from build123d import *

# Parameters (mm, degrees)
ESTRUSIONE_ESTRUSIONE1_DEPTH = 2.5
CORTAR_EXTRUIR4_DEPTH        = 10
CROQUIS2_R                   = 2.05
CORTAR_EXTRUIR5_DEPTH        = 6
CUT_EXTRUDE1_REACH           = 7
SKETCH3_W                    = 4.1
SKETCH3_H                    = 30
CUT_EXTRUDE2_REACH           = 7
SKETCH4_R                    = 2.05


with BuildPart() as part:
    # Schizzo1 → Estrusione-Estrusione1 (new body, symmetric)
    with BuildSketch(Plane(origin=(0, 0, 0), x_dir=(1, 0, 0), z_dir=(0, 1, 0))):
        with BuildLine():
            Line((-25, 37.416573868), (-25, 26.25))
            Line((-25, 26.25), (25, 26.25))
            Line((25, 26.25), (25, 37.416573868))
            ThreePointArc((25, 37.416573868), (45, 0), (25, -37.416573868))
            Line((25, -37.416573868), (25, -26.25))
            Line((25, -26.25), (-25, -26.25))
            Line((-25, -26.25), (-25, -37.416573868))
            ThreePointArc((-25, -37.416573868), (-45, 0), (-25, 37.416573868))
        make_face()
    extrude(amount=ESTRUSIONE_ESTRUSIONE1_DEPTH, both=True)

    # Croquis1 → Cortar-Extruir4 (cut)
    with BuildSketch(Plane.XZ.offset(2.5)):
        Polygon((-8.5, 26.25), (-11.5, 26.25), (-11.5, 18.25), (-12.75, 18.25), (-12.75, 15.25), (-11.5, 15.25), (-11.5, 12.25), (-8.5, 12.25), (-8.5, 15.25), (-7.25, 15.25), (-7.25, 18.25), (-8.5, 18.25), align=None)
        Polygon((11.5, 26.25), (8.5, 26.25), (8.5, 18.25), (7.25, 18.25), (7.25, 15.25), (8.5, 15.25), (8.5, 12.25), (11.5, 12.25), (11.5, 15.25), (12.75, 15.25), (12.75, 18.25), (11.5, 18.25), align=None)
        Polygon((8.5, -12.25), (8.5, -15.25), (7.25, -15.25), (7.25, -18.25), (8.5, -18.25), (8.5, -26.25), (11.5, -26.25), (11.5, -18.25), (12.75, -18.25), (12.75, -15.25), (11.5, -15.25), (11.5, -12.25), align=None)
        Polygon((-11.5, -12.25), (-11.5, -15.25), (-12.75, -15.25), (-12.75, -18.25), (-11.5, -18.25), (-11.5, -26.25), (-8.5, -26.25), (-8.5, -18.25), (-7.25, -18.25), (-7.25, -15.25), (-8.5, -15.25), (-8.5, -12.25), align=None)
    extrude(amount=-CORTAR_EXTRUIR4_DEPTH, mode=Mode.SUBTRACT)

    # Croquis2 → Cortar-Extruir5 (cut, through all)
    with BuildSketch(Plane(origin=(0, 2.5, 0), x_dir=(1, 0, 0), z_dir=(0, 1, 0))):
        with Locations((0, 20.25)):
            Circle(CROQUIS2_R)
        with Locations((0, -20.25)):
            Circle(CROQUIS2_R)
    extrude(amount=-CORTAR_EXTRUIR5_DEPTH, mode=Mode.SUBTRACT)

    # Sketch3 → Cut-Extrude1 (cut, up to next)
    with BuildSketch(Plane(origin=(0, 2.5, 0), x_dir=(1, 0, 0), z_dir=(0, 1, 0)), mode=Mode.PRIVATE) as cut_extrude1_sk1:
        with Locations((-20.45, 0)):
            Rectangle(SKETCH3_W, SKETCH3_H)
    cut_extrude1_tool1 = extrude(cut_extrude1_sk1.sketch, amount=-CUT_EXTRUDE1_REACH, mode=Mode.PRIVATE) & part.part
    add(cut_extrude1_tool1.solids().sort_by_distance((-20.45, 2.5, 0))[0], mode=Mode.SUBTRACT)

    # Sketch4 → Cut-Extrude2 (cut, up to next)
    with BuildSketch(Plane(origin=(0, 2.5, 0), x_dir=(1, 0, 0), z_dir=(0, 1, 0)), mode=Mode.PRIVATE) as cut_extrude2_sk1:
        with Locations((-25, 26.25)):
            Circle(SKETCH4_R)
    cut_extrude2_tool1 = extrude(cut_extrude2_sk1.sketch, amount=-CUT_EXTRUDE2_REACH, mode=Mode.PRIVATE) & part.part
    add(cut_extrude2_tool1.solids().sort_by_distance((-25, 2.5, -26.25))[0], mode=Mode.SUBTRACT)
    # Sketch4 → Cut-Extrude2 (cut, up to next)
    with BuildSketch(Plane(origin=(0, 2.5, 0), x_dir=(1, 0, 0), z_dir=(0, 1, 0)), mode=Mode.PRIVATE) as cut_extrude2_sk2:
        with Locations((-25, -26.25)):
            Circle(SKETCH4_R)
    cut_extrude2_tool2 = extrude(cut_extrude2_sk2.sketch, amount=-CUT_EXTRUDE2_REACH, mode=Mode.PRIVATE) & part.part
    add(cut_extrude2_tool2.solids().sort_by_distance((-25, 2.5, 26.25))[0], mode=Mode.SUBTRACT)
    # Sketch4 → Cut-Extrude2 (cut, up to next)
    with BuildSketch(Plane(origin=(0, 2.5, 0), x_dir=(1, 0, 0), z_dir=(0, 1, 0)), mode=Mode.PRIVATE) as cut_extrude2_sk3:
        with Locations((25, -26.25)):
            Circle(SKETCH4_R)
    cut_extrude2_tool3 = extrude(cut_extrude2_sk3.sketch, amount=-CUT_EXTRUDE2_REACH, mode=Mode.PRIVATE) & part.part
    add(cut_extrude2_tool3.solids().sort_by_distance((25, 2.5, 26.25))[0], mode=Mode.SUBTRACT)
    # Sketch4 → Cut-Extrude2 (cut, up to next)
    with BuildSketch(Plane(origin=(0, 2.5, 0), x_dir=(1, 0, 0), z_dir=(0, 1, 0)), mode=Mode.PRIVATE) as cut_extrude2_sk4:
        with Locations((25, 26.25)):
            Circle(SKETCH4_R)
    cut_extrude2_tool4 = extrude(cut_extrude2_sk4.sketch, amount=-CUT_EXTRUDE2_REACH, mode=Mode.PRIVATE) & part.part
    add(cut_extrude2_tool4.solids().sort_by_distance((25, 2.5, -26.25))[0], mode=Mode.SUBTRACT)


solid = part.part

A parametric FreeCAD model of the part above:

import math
import FreeCAD as App
import Part
import Sketcher

V = App.Vector
Q = App.Units.Quantity

doc = App.newDocument("Part")
body = doc.addObject("PartDesign::Body", "Body")

sketch1 = body.newObject("Sketcher::SketchObject", "Sketch")
sketch1.AttachmentSupport = (doc.getObject("XZ_Plane"), [""])
sketch1.MapMode = "FlatFace"
sketch1.addGeometry(Part.LineSegment(V(-25, -26, 0), V(-25, -37, 0)), False)
sketch1.addGeometry(Part.ArcOfCircle(Part.Circle(V(0, 0, 0), V(0, 0, 1), 45), math.radians(124), math.radians(236)), False)
sketch1.addGeometry(Part.LineSegment(V(-25, 37, 0), V(-25, 26, 0)), False)
sketch1.addGeometry(Part.LineSegment(V(-25, 26, 0), V(25, 26, 0)), False)
sketch1.addGeometry(Part.LineSegment(V(25, 26, 0), V(25, 37, 0)), False)
sketch1.addGeometry(Part.ArcOfCircle(Part.Circle(V(0, 0, 0), V(0, 0, 1), 45), math.radians(-56), math.radians(56)), False)
sketch1.addGeometry(Part.LineSegment(V(25, -37, 0), V(25, -26, 0)), False)
sketch1.addGeometry(Part.LineSegment(V(25, -26, 0), V(-25, -26, 0)), False)
sketch1.addConstraint(Sketcher.Constraint("Coincident", 0, 2, 1, 2))
sketch1.addConstraint(Sketcher.Constraint("Coincident", 1, 1, 2, 1))
sketch1.addConstraint(Sketcher.Constraint("Coincident", 2, 2, 3, 1))
sketch1.addConstraint(Sketcher.Constraint("Coincident", 3, 2, 4, 1))
sketch1.addConstraint(Sketcher.Constraint("Coincident", 4, 2, 5, 2))
sketch1.addConstraint(Sketcher.Constraint("Coincident", 5, 1, 6, 1))
sketch1.addConstraint(Sketcher.Constraint("Coincident", 6, 2, 7, 1))
sketch1.addConstraint(Sketcher.Constraint("Coincident", 7, 2, 0, 1))
sketch1.addConstraint(Sketcher.Constraint("Vertical", 0))
sketch1.addConstraint(Sketcher.Constraint("Vertical", 2))
sketch1.addConstraint(Sketcher.Constraint("Horizontal", 3))
sketch1.addConstraint(Sketcher.Constraint("Vertical", 4))
sketch1.addConstraint(Sketcher.Constraint("Vertical", 6))
sketch1.addConstraint(Sketcher.Constraint("Horizontal", 7))
sketch1.addConstraint(Sketcher.Constraint("Coincident", 1, 3, -1, 1))
sketch1.addConstraint(Sketcher.Constraint("Coincident", 5, 3, -1, 1))
sketch1.addConstraint(Sketcher.Constraint("Equal", 1, 5))
sketch1.addConstraint(Sketcher.Constraint("Symmetric", 2, 2, 6, 2, -1, 1))
sketch1.addConstraint(Sketcher.Constraint("Horizontal", 1, 1, 4, 2))
sketch1.addConstraint(Sketcher.Constraint("Horizontal", 0, 2, 5, 1))
sketch1.addConstraint(Sketcher.Constraint("Radius", 1, Q("45 mm")))
sketch1.addConstraint(Sketcher.Constraint("DistanceX", 3, 1, 3, 2, Q("50 mm")))
sketch1.addConstraint(Sketcher.Constraint("DistanceY", 6, 2, 3, 2, Q("52.5 mm")))
pad1 = body.newObject("PartDesign::Pad", "Pad")
pad1.Profile = sketch1
pad1.Length = 5
pad1.Midplane = True

sketch2 = body.newObject("Sketcher::SketchObject", "Sketch001")
sketch2.AttachmentSupport = (doc.getObject("XZ_Plane"), [""])
sketch2.MapMode = "FlatFace"
sketch2.AttachmentOffset = App.Placement(V(0, 0, 2.5), App.Rotation())
sketch2.addGeometry(Part.LineSegment(V(-8.5, 26.2, 0), V(-11.5, 26.2, 0)), False)
sketch2.addGeometry(Part.LineSegment(V(-11.5, 26.2, 0), V(-11.5, 18.2, 0)), False)
sketch2.addGeometry(Part.LineSegment(V(-11.5, 18.2, 0), V(-12.8, 18.2, 0)), False)
sketch2.addGeometry(Part.LineSegment(V(-12.8, 18.2, 0), V(-12.8, 15.2, 0)), False)
sketch2.addGeometry(Part.LineSegment(V(-12.8, 15.2, 0), V(-11.5, 15.2, 0)), False)
sketch2.addGeometry(Part.LineSegment(V(-11.5, 15.2, 0), V(-11.5, 12.2, 0)), False)
sketch2.addGeometry(Part.LineSegment(V(-11.5, 12.2, 0), V(-8.5, 12.2, 0)), False)
sketch2.addGeometry(Part.LineSegment(V(-8.5, 12.2, 0), V(-8.5, 15.2, 0)), False)
sketch2.addGeometry(Part.LineSegment(V(-8.5, 15.2, 0), V(-7.2, 15.2, 0)), False)
sketch2.addGeometry(Part.LineSegment(V(-7.2, 15.2, 0), V(-7.2, 18.2, 0)), False)
sketch2.addGeometry(Part.LineSegment(V(-7.2, 18.2, 0), V(-8.5, 18.2, 0)), False)
sketch2.addGeometry(Part.LineSegment(V(-8.5, 18.2, 0), V(-8.5, 26.2, 0)), False)
sketch2.addGeometry(Part.LineSegment(V(11.5, 26.2, 0), V(8.5, 26.2, 0)), False)
sketch2.addGeometry(Part.LineSegment(V(8.5, 26.2, 0), V(8.5, 18.2, 0)), False)
sketch2.addGeometry(Part.LineSegment(V(8.5, 18.2, 0), V(7.2, 18.2, 0)), False)
sketch2.addGeometry(Part.LineSegment(V(7.2, 18.2, 0), V(7.2, 15.2, 0)), False)
sketch2.addGeometry(Part.LineSegment(V(7.2, 15.2, 0), V(8.5, 15.2, 0)), False)
sketch2.addGeometry(Part.LineSegment(V(8.5, 15.2, 0), V(8.5, 12.2, 0)), False)
sketch2.addGeometry(Part.LineSegment(V(8.5, 12.2, 0), V(11.5, 12.2, 0)), False)
sketch2.addGeometry(Part.LineSegment(V(11.5, 12.2, 0), V(11.5, 15.2, 0)), False)
sketch2.addGeometry(Part.LineSegment(V(11.5, 15.2, 0), V(12.8, 15.2, 0)), False)
sketch2.addGeometry(Part.LineSegment(V(12.8, 15.2, 0), V(12.8, 18.2, 0)), False)
sketch2.addGeometry(Part.LineSegment(V(12.8, 18.2, 0), V(11.5, 18.2, 0)), False)
sketch2.addGeometry(Part.LineSegment(V(11.5, 18.2, 0), V(11.5, 26.2, 0)), False)
sketch2.addGeometry(Part.LineSegment(V(8.5, -12.2, 0), V(8.5, -15.2, 0)), False)
sketch2.addGeometry(Part.LineSegment(V(8.5, -15.2, 0), V(7.2, -15.2, 0)), False)
sketch2.addGeometry(Part.LineSegment(V(7.2, -15.2, 0), V(7.2, -18.2, 0)), False)
sketch2.addGeometry(Part.LineSegment(V(7.2, -18.2, 0), V(8.5, -18.2, 0)), False)
sketch2.addGeometry(Part.LineSegment(V(8.5, -18.2, 0), V(8.5, -26.2, 0)), False)
sketch2.addGeometry(Part.LineSegment(V(8.5, -26.2, 0), V(11.5, -26.2, 0)), False)
sketch2.addGeometry(Part.LineSegment(V(11.5, -26.2, 0), V(11.5, -18.2, 0)), False)
sketch2.addGeometry(Part.LineSegment(V(11.5, -18.2, 0), V(12.8, -18.2, 0)), False)
sketch2.addGeometry(Part.LineSegment(V(12.8, -18.2, 0), V(12.8, -15.2, 0)), False)
sketch2.addGeometry(Part.LineSegment(V(12.8, -15.2, 0), V(11.5, -15.2, 0)), False)
sketch2.addGeometry(Part.LineSegment(V(11.5, -15.2, 0), V(11.5, -12.2, 0)), False)
sketch2.addGeometry(Part.LineSegment(V(11.5, -12.2, 0), V(8.5, -12.2, 0)), False)
sketch2.addGeometry(Part.LineSegment(V(-11.5, -12.2, 0), V(-11.5, -15.2, 0)), False)
sketch2.addGeometry(Part.LineSegment(V(-11.5, -15.2, 0), V(-12.8, -15.2, 0)), False)
sketch2.addGeometry(Part.LineSegment(V(-12.8, -15.2, 0), V(-12.8, -18.2, 0)), False)
sketch2.addGeometry(Part.LineSegment(V(-12.8, -18.2, 0), V(-11.5, -18.2, 0)), False)
sketch2.addGeometry(Part.LineSegment(V(-11.5, -18.2, 0), V(-11.5, -26.2, 0)), False)
sketch2.addGeometry(Part.LineSegment(V(-11.5, -26.2, 0), V(-8.5, -26.2, 0)), False)
sketch2.addGeometry(Part.LineSegment(V(-8.5, -26.2, 0), V(-8.5, -18.2, 0)), False)
sketch2.addGeometry(Part.LineSegment(V(-8.5, -18.2, 0), V(-7.2, -18.2, 0)), False)
sketch2.addGeometry(Part.LineSegment(V(-7.2, -18.2, 0), V(-7.2, -15.2, 0)), False)
sketch2.addGeometry(Part.LineSegment(V(-7.2, -15.2, 0), V(-8.5, -15.2, 0)), False)
sketch2.addGeometry(Part.LineSegment(V(-8.5, -15.2, 0), V(-8.5, -12.2, 0)), False)
sketch2.addGeometry(Part.LineSegment(V(-8.5, -12.2, 0), V(-11.5, -12.2, 0)), False)
sketch2.addConstraint(Sketcher.Constraint("Coincident", 0, 2, 1, 1))
sketch2.addConstraint(Sketcher.Constraint("Coincident", 1, 2, 2, 1))
sketch2.addConstraint(Sketcher.Constraint("Coincident", 2, 2, 3, 1))
sketch2.addConstraint(Sketcher.Constraint("Coincident", 3, 2, 4, 1))
sketch2.addConstraint(Sketcher.Constraint("Coincident", 4, 2, 5, 1))
sketch2.addConstraint(Sketcher.Constraint("Coincident", 5, 2, 6, 1))
sketch2.addConstraint(Sketcher.Constraint("Coincident", 6, 2, 7, 1))
sketch2.addConstraint(Sketcher.Constraint("Coincident", 7, 2, 8, 1))
sketch2.addConstraint(Sketcher.Constraint("Coincident", 8, 2, 9, 1))
sketch2.addConstraint(Sketcher.Constraint("Coincident", 9, 2, 10, 1))
sketch2.addConstraint(Sketcher.Constraint("Coincident", 10, 2, 11, 1))
sketch2.addConstraint(Sketcher.Constraint("Coincident", 11, 2, 0, 1))
sketch2.addConstraint(Sketcher.Constraint("Coincident", 12, 2, 13, 1))
sketch2.addConstraint(Sketcher.Constraint("Coincident", 13, 2, 14, 1))
sketch2.addConstraint(Sketcher.Constraint("Coincident", 14, 2, 15, 1))
sketch2.addConstraint(Sketcher.Constraint("Coincident", 15, 2, 16, 1))
sketch2.addConstraint(Sketcher.Constraint("Coincident", 16, 2, 17, 1))
sketch2.addConstraint(Sketcher.Constraint("Coincident", 17, 2, 18, 1))
sketch2.addConstraint(Sketcher.Constraint("Coincident", 18, 2, 19, 1))
sketch2.addConstraint(Sketcher.Constraint("Coincident", 19, 2, 20, 1))
sketch2.addConstraint(Sketcher.Constraint("Coincident", 20, 2, 21, 1))
sketch2.addConstraint(Sketcher.Constraint("Coincident", 21, 2, 22, 1))
sketch2.addConstraint(Sketcher.Constraint("Coincident", 22, 2, 23, 1))
sketch2.addConstraint(Sketcher.Constraint("Coincident", 23, 2, 12, 1))
sketch2.addConstraint(Sketcher.Constraint("Coincident", 24, 2, 25, 1))
sketch2.addConstraint(Sketcher.Constraint("Coincident", 25, 2, 26, 1))
sketch2.addConstraint(Sketcher.Constraint("Coincident", 26, 2, 27, 1))
sketch2.addConstraint(Sketcher.Constraint("Coincident", 27, 2, 28, 1))
sketch2.addConstraint(Sketcher.Constraint("Coincident", 28, 2, 29, 1))
sketch2.addConstraint(Sketcher.Constraint("Coincident", 29, 2, 30, 1))
sketch2.addConstraint(Sketcher.Constraint("Coincident", 30, 2, 31, 1))
sketch2.addConstraint(Sketcher.Constraint("Coincident", 31, 2, 32, 1))
sketch2.addConstraint(Sketcher.Constraint("Coincident", 32, 2, 33, 1))
sketch2.addConstraint(Sketcher.Constraint("Coincident", 33, 2, 34, 1))
sketch2.addConstraint(Sketcher.Constraint("Coincident", 34, 2, 35, 1))
sketch2.addConstraint(Sketcher.Constraint("Coincident", 35, 2, 24, 1))
sketch2.addConstraint(Sketcher.Constraint("Coincident", 36, 2, 37, 1))
sketch2.addConstraint(Sketcher.Constraint("Coincident", 37, 2, 38, 1))
sketch2.addConstraint(Sketcher.Constraint("Coincident", 38, 2, 39, 1))
sketch2.addConstraint(Sketcher.Constraint("Coincident", 39, 2, 40, 1))
sketch2.addConstraint(Sketcher.Constraint("Coincident", 40, 2, 41, 1))
sketch2.addConstraint(Sketcher.Constraint("Coincident", 41, 2, 42, 1))
sketch2.addConstraint(Sketcher.Constraint("Coincident", 42, 2, 43, 1))
sketch2.addConstraint(Sketcher.Constraint("Coincident", 43, 2, 44, 1))
sketch2.addConstraint(Sketcher.Constraint("Coincident", 44, 2, 45, 1))
sketch2.addConstraint(Sketcher.Constraint("Coincident", 45, 2, 46, 1))
sketch2.addConstraint(Sketcher.Constraint("Coincident", 46, 2, 47, 1))
sketch2.addConstraint(Sketcher.Constraint("Coincident", 47, 2, 36, 1))
sketch2.addConstraint(Sketcher.Constraint("Horizontal", 0))
sketch2.addConstraint(Sketcher.Constraint("Vertical", 1))
sketch2.addConstraint(Sketcher.Constraint("Horizontal", 2))
sketch2.addConstraint(Sketcher.Constraint("Vertical", 3))
sketch2.addConstraint(Sketcher.Constraint("Horizontal", 4))
sketch2.addConstraint(Sketcher.Constraint("Vertical", 5))
sketch2.addConstraint(Sketcher.Constraint("Horizontal", 6))
sketch2.addConstraint(Sketcher.Constraint("Vertical", 7))
sketch2.addConstraint(Sketcher.Constraint("Horizontal", 8))
sketch2.addConstraint(Sketcher.Constraint("Vertical", 9))
sketch2.addConstraint(Sketcher.Constraint("Horizontal", 10))
sketch2.addConstraint(Sketcher.Constraint("Vertical", 11))
sketch2.addConstraint(Sketcher.Constraint("Horizontal", 12))
sketch2.addConstraint(Sketcher.Constraint("Vertical", 13))
sketch2.addConstraint(Sketcher.Constraint("Horizontal", 14))
sketch2.addConstraint(Sketcher.Constraint("Vertical", 15))
sketch2.addConstraint(Sketcher.Constraint("Horizontal", 16))
sketch2.addConstraint(Sketcher.Constraint("Vertical", 17))
sketch2.addConstraint(Sketcher.Constraint("Horizontal", 18))
sketch2.addConstraint(Sketcher.Constraint("Vertical", 19))
sketch2.addConstraint(Sketcher.Constraint("Horizontal", 20))
sketch2.addConstraint(Sketcher.Constraint("Vertical", 21))
sketch2.addConstraint(Sketcher.Constraint("Horizontal", 22))
sketch2.addConstraint(Sketcher.Constraint("Vertical", 23))
sketch2.addConstraint(Sketcher.Constraint("Vertical", 24))
sketch2.addConstraint(Sketcher.Constraint("Horizontal", 25))
sketch2.addConstraint(Sketcher.Constraint("Vertical", 26))
sketch2.addConstraint(Sketcher.Constraint("Horizontal", 27))
sketch2.addConstraint(Sketcher.Constraint("Vertical", 28))
sketch2.addConstraint(Sketcher.Constraint("Horizontal", 29))
sketch2.addConstraint(Sketcher.Constraint("Vertical", 30))
sketch2.addConstraint(Sketcher.Constraint("Horizontal", 31))
sketch2.addConstraint(Sketcher.Constraint("Vertical", 32))
sketch2.addConstraint(Sketcher.Constraint("Horizontal", 33))
sketch2.addConstraint(Sketcher.Constraint("Vertical", 34))
sketch2.addConstraint(Sketcher.Constraint("Horizontal", 35))
sketch2.addConstraint(Sketcher.Constraint("Vertical", 36))
sketch2.addConstraint(Sketcher.Constraint("Horizontal", 37))
sketch2.addConstraint(Sketcher.Constraint("Vertical", 38))
sketch2.addConstraint(Sketcher.Constraint("Horizontal", 39))
sketch2.addConstraint(Sketcher.Constraint("Vertical", 40))
sketch2.addConstraint(Sketcher.Constraint("Horizontal", 41))
sketch2.addConstraint(Sketcher.Constraint("Vertical", 42))
sketch2.addConstraint(Sketcher.Constraint("Horizontal", 43))
sketch2.addConstraint(Sketcher.Constraint("Vertical", 44))
sketch2.addConstraint(Sketcher.Constraint("Horizontal", 45))
sketch2.addConstraint(Sketcher.Constraint("Vertical", 46))
sketch2.addConstraint(Sketcher.Constraint("Horizontal", 47))
sketch2.addConstraint(Sketcher.Constraint("Symmetric", 7, 2, 24, 2, -1, 1))
sketch2.addConstraint(Sketcher.Constraint("Symmetric", 9, 2, 26, 2, -1, 1))
sketch2.addConstraint(Sketcher.Constraint("Symmetric", 11, 2, 28, 2, -1, 1))
sketch2.addConstraint(Sketcher.Constraint("Symmetric", 1, 2, 30, 2, -1, 1))
sketch2.addConstraint(Sketcher.Constraint("Symmetric", 3, 2, 32, 2, -1, 1))
sketch2.addConstraint(Sketcher.Constraint("Symmetric", 5, 2, 34, 2, -1, 1))
sketch2.addConstraint(Sketcher.Constraint("Symmetric", 19, 2, 36, 2, -1, 1))
sketch2.addConstraint(Sketcher.Constraint("Symmetric", 21, 2, 38, 2, -1, 1))
sketch2.addConstraint(Sketcher.Constraint("Symmetric", 23, 2, 40, 2, -1, 1))
sketch2.addConstraint(Sketcher.Constraint("Symmetric", 13, 2, 42, 2, -1, 1))
sketch2.addConstraint(Sketcher.Constraint("Symmetric", 15, 2, 44, 2, -1, 1))
sketch2.addConstraint(Sketcher.Constraint("Symmetric", 17, 2, 46, 2, -1, 1))
sketch2.addConstraint(Sketcher.Constraint("Symmetric", 11, 2, 12, 2, -2))
sketch2.addConstraint(Sketcher.Constraint("Symmetric", 9, 2, 14, 2, -2))
sketch2.addConstraint(Sketcher.Constraint("Symmetric", 7, 2, 16, 2, -2))
sketch2.addConstraint(Sketcher.Constraint("Symmetric", 5, 2, 18, 2, -2))
sketch2.addConstraint(Sketcher.Constraint("Symmetric", 3, 2, 20, 2, -2))
sketch2.addConstraint(Sketcher.Constraint("Symmetric", 1, 2, 22, 2, -2))
sketch2.addConstraint(Sketcher.Constraint("Horizontal", 4, 2, 7, 2))
sketch2.addConstraint(Sketcher.Constraint("Horizontal", 2, 2, 9, 2))
sketch2.addConstraint(Sketcher.Constraint("Vertical", 1, 2, 4, 2))
sketch2.addConstraint(Sketcher.Constraint("Vertical", 7, 2, 10, 2))
sketch2.addConstraint(Sketcher.Constraint("Equal", 4, 8))
sketch2.addConstraint(Sketcher.Constraint("Equal", 47, 3))
sketch2.addConstraint(Sketcher.Constraint("Equal", 3, 5))
sketch2.addConstraint(Sketcher.Constraint("DistanceX", 0, 2, 0, 1, Q("3 mm")))
sketch2.addConstraint(Sketcher.Constraint("DistanceY", 1, 2, 1, 1, Q("8 mm")))
sketch2.addConstraint(Sketcher.Constraint("DistanceX", 11, 2, 12, 2, Q("17 mm")))
sketch2.addConstraint(Sketcher.Constraint("DistanceX", 2, 2, 2, 1, Q("1.25 mm")))
sketch2.addConstraint(Sketcher.Constraint("DistanceY", 24, 2, 17, 2, Q("27.5 mm")))
pocket1 = body.newObject("PartDesign::Pocket", "Pocket")
pocket1.Profile = sketch2
pocket1.Length = 10

sketch3 = body.newObject("Sketcher::SketchObject", "Sketch002")
sketch3.AttachmentSupport = (doc.getObject("XZ_Plane"), [""])
sketch3.MapMode = "FlatFace"
sketch3.AttachmentOffset = App.Placement(V(0, 0, -2.5), App.Rotation())
sketch3.addGeometry(Part.Circle(V(0, -20.2, 0), V(0, 0, 1), 2), False)
sketch3.addGeometry(Part.Circle(V(0, 20.2, 0), V(0, 0, 1), 2), False)
sketch3.addConstraint(Sketcher.Constraint("Equal", 0, 1))
sketch3.addConstraint(Sketcher.Constraint("Symmetric", 0, 3, 1, 3, -1, 1))
sketch3.addConstraint(Sketcher.Constraint("PointOnObject", 0, 3, -2))
sketch3.addConstraint(Sketcher.Constraint("Diameter", 0, Q("4.1 mm")))
sketch3.addConstraint(Sketcher.Constraint("DistanceY", 0, 3, 1, 3, Q("40.5 mm")))
pocket2 = body.newObject("PartDesign::Pocket", "Pocket001")
pocket2.Profile = sketch3
pocket2.Type = "ThroughAll"
pocket2.Reversed = True

sketch4 = body.newObject("Sketcher::SketchObject", "Sketch003")
sketch4.AttachmentSupport = (doc.getObject("XZ_Plane"), [""])
sketch4.MapMode = "FlatFace"
sketch4.AttachmentOffset = App.Placement(V(0, 0, -2.5), App.Rotation())
sketch4.addGeometry(Part.LineSegment(V(-22.5, -15, 0), V(-22.5, 15, 0)), False)
sketch4.addGeometry(Part.LineSegment(V(-22.5, 15, 0), V(-18.4, 15, 0)), False)
sketch4.addGeometry(Part.LineSegment(V(-18.4, 15, 0), V(-18.4, -15, 0)), False)
sketch4.addGeometry(Part.LineSegment(V(-18.4, -15, 0), V(-22.5, -15, 0)), False)
sketch4.addConstraint(Sketcher.Constraint("Coincident", 0, 2, 1, 1))
sketch4.addConstraint(Sketcher.Constraint("Coincident", 1, 2, 2, 1))
sketch4.addConstraint(Sketcher.Constraint("Coincident", 2, 2, 3, 1))
sketch4.addConstraint(Sketcher.Constraint("Coincident", 3, 2, 0, 1))
sketch4.addConstraint(Sketcher.Constraint("Vertical", 0))
sketch4.addConstraint(Sketcher.Constraint("Horizontal", 1))
sketch4.addConstraint(Sketcher.Constraint("Vertical", 2))
sketch4.addConstraint(Sketcher.Constraint("Horizontal", 3))
sketch4.addConstraint(Sketcher.Constraint("DistanceY", 0, 1, 0, 2, Q("30 mm")))
sketch4.addConstraint(Sketcher.Constraint("DistanceX", 1, 1, 1, 2, Q("4.1 mm")))
sketch4.addConstraint(Sketcher.Constraint("DistanceY", -1, 1, 0, 2, Q("15 mm")))
sketch4.addConstraint(Sketcher.Constraint("DistanceX", 0, 2, -1, 1, Q("22.5 mm")))
pocket3 = body.newObject("PartDesign::Pocket", "Pocket002")
pocket3.Profile = sketch4
pocket3.Type = "UpToFirst"
pocket3.Reversed = True

sketch5 = body.newObject("Sketcher::SketchObject", "Sketch004")
sketch5.AttachmentSupport = (doc.getObject("XZ_Plane"), [""])
sketch5.MapMode = "FlatFace"
sketch5.AttachmentOffset = App.Placement(V(0, 0, -2.5), App.Rotation())
sketch5.addGeometry(Part.Circle(V(-25, -26.2, 0), V(0, 0, 1), 2), False)
sketch5.addConstraint(Sketcher.Constraint("Diameter", 0, Q("4.1 mm")))
sketch5.addConstraint(Sketcher.Constraint("DistanceX", 0, 3, -1, 1, Q("25 mm")))
sketch5.addConstraint(Sketcher.Constraint("DistanceY", 0, 3, -1, 1, Q("26.25 mm")))
pocket4 = body.newObject("PartDesign::Pocket", "Pocket003")
pocket4.Profile = sketch5
pocket4.Type = "UpToFirst"
pocket4.Reversed = True

sketch6 = body.newObject("Sketcher::SketchObject", "Sketch005")
sketch6.AttachmentSupport = (doc.getObject("XZ_Plane"), [""])
sketch6.MapMode = "FlatFace"
sketch6.AttachmentOffset = App.Placement(V(0, 0, -2.5), App.Rotation())
sketch6.addGeometry(Part.Circle(V(-25, 26.2, 0), V(0, 0, 1), 2), False)
sketch6.addConstraint(Sketcher.Constraint("Diameter", 0, Q("4.1 mm")))
sketch6.addConstraint(Sketcher.Constraint("DistanceX", 0, 3, -1, 1, Q("25 mm")))
sketch6.addConstraint(Sketcher.Constraint("DistanceY", -1, 1, 0, 3, Q("26.25 mm")))
pocket5 = body.newObject("PartDesign::Pocket", "Pocket004")
pocket5.Profile = sketch6
pocket5.Type = "UpToFirst"
pocket5.Reversed = True

sketch7 = body.newObject("Sketcher::SketchObject", "Sketch006")
sketch7.AttachmentSupport = (doc.getObject("XZ_Plane"), [""])
sketch7.MapMode = "FlatFace"
sketch7.AttachmentOffset = App.Placement(V(0, 0, -2.5), App.Rotation())
sketch7.addGeometry(Part.Circle(V(25, 26.2, 0), V(0, 0, 1), 2), False)
sketch7.addConstraint(Sketcher.Constraint("Diameter", 0, Q("4.1 mm")))
sketch7.addConstraint(Sketcher.Constraint("DistanceX", -1, 1, 0, 3, Q("25 mm")))
sketch7.addConstraint(Sketcher.Constraint("DistanceY", -1, 1, 0, 3, Q("26.25 mm")))
pocket6 = body.newObject("PartDesign::Pocket", "Pocket005")
pocket6.Profile = sketch7
pocket6.Type = "UpToFirst"
pocket6.Reversed = True

sketch8 = body.newObject("Sketcher::SketchObject", "Sketch007")
sketch8.AttachmentSupport = (doc.getObject("XZ_Plane"), [""])
sketch8.MapMode = "FlatFace"
sketch8.AttachmentOffset = App.Placement(V(0, 0, -2.5), App.Rotation())
sketch8.addGeometry(Part.Circle(V(25, -26.2, 0), V(0, 0, 1), 2), False)
sketch8.addConstraint(Sketcher.Constraint("Diameter", 0, Q("4.1 mm")))
sketch8.addConstraint(Sketcher.Constraint("DistanceX", -1, 1, 0, 3, Q("25 mm")))
sketch8.addConstraint(Sketcher.Constraint("DistanceY", 0, 3, -1, 1, Q("26.25 mm")))
pocket7 = body.newObject("PartDesign::Pocket", "Pocket006")
pocket7.Profile = sketch8
pocket7.Type = "UpToFirst"
pocket7.Reversed = True

doc.recompute()
